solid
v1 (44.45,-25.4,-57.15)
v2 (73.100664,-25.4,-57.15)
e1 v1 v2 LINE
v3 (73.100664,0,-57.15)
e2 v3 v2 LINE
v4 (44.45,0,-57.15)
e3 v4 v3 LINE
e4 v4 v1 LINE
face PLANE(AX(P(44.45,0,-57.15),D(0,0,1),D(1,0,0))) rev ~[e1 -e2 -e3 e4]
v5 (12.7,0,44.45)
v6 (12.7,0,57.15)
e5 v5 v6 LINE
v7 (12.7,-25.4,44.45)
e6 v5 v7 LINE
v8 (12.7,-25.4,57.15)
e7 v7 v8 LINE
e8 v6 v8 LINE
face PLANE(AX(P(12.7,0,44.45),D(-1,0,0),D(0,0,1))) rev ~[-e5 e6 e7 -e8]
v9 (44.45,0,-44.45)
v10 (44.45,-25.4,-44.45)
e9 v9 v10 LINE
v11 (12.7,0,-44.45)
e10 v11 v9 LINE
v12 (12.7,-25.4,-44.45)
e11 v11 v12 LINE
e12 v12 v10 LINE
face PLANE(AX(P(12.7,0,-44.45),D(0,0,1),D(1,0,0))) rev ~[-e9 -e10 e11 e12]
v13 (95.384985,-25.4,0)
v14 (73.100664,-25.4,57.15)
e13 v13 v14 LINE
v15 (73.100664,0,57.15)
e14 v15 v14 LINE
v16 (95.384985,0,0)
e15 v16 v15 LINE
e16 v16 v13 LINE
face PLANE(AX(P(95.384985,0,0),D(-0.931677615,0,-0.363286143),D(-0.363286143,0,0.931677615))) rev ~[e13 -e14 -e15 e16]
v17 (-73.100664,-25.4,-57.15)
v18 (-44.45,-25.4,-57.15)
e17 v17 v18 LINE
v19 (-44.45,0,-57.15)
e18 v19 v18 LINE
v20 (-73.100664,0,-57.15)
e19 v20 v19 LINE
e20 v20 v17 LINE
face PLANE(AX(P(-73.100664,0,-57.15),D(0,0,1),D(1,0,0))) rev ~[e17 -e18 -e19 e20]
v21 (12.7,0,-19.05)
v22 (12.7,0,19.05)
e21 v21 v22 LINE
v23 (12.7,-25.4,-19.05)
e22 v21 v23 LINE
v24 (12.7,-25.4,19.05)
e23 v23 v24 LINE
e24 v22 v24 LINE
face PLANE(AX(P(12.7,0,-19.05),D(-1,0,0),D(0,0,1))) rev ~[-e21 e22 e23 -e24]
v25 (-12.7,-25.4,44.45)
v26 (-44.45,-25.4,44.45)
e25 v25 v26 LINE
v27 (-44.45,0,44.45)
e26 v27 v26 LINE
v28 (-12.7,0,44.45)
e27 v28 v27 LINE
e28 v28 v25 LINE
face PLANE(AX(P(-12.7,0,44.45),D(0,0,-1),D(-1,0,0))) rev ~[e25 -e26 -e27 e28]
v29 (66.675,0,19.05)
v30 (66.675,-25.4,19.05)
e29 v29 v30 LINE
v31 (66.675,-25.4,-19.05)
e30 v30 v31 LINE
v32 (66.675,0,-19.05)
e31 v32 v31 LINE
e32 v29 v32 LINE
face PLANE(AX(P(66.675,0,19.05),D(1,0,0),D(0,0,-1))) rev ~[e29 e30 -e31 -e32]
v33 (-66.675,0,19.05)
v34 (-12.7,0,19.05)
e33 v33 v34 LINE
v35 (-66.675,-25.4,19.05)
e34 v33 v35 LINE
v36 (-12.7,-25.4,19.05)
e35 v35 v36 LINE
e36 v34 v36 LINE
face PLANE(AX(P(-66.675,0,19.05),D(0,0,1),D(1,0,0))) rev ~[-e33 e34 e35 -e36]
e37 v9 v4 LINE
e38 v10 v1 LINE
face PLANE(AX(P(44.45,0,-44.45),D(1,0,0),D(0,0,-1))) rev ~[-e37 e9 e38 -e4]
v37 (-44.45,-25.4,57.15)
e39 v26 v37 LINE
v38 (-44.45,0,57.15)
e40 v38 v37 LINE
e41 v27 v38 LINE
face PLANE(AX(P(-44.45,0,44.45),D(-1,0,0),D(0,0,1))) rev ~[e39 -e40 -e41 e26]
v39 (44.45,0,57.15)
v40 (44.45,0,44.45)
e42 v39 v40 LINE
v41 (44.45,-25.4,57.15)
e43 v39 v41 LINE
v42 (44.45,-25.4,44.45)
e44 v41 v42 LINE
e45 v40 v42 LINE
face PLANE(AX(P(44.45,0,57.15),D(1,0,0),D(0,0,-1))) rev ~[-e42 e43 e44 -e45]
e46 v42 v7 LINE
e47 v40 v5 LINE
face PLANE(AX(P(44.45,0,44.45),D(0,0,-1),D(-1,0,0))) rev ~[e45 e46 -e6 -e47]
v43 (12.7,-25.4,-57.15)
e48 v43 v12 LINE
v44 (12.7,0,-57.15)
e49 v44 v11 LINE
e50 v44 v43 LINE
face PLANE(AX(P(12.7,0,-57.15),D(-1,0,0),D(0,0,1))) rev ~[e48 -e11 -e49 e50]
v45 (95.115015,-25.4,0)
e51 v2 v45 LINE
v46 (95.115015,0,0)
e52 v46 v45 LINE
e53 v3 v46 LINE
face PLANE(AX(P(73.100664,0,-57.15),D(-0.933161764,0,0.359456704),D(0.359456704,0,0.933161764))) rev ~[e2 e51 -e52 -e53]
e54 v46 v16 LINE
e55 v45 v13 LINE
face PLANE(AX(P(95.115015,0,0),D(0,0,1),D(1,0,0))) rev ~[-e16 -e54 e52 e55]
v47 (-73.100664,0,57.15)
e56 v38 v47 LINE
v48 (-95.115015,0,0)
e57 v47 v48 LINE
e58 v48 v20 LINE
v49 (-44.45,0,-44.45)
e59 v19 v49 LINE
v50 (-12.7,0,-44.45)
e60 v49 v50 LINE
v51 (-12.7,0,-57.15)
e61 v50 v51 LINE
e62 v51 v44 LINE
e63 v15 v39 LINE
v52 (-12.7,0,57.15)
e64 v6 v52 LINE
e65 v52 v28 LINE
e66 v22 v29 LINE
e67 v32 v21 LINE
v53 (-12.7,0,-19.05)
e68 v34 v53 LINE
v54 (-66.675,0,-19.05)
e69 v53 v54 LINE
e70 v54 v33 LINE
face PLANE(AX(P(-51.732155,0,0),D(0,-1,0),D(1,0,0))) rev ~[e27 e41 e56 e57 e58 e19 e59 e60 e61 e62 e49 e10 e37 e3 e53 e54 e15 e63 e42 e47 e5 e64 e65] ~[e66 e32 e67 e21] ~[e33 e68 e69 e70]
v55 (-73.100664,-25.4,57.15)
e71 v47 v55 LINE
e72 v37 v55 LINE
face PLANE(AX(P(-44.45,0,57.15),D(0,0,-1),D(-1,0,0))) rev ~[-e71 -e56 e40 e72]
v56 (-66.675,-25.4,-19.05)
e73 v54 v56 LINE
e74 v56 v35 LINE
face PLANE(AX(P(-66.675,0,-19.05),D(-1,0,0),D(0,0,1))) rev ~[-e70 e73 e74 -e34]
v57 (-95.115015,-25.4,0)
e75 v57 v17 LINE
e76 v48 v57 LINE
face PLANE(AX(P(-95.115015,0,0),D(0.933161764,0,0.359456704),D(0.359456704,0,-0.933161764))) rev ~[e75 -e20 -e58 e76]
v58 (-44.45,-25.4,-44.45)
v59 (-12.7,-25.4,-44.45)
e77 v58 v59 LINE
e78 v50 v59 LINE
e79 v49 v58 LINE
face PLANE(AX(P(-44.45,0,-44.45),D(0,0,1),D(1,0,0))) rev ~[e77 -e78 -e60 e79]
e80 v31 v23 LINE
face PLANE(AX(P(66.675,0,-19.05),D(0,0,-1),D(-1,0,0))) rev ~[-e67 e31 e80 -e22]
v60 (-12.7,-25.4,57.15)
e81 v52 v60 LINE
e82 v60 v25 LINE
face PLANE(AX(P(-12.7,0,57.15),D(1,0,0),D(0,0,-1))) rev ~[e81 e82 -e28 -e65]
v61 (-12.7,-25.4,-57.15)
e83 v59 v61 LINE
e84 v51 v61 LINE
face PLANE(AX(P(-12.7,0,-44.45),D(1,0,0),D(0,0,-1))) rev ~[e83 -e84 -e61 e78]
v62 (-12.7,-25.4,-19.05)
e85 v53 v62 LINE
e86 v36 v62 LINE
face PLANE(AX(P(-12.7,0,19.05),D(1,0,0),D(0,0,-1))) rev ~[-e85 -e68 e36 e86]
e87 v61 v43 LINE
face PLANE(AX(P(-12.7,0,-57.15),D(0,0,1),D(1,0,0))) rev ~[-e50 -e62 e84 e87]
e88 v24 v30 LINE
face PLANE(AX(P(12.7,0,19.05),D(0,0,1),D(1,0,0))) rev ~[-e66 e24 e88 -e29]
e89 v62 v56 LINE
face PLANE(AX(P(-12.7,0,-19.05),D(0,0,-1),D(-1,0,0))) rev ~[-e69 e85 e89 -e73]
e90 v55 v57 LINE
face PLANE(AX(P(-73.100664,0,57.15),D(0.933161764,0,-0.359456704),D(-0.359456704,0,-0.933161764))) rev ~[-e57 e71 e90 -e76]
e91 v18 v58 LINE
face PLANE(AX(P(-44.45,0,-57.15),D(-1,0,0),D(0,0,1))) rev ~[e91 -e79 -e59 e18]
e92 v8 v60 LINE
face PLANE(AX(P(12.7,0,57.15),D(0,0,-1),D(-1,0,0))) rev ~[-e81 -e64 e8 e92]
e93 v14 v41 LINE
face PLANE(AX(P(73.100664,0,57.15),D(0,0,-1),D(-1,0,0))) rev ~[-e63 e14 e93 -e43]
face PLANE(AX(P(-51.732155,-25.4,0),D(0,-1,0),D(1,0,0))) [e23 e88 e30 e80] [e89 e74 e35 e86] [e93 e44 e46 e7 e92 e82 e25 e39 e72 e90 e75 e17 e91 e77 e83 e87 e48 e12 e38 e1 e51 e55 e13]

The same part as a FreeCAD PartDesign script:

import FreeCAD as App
import Part
import Sketcher
Q = App.Units.Quantity


def add_polygon(sketch, points):
    """Adds a closed chain of lines whose ends are joined by coincident constraints."""
    first, n = sketch.GeometryCount, len(points)
    for a, b in zip(points, points[1:] + points[:1]):
        sketch.addGeometry(Part.LineSegment(App.Vector(*a, 0), App.Vector(*b, 0)), False)
    for i in range(n):
        sketch.addConstraint(Sketcher.Constraint("Coincident", first + i, 2, first + (i + 1) % n, 1))

doc = App.newDocument("Part")
body = doc.addObject("PartDesign::Body", "Body")

# Sketch on XZ plane
sketch1 = body.newObject("Sketcher::SketchObject", "Sketch")
sketch1.AttachmentSupport = (doc.getObject("XZ_Plane"), [""])
sketch1.MapMode = "FlatFace"
add_polygon(sketch1, [(-12.7, 44.45), (-44.45, 44.45), (-44.45, 57.15), (-73.100664, 57.15), (-95.115015, 0), (-73.100664, -57.15), (-44.45, -57.15), (-44.45, -44.45), (-12.7, -44.45), (-12.7, -57.15), (12.7, -57.15), (12.7, -44.45), (44.45, -44.45), (44.45, -57.15), (73.100664, -57.15), (95.115015, 0), (95.384985, 0), (73.100664, 57.15), (44.45, 57.15), (44.45, 44.45), (12.7, 44.45), (12.7, 57.15), (-12.7, 57.15)])  # lines 0-22
add_polygon(sketch1, [(12.7, -19.05), (12.7, 19.05), (66.675, 19.05), (66.675, -19.05)])  # lines 23-26
add_polygon(sketch1, [(-12.7, -19.05), (-66.675, -19.05), (-66.675, 19.05), (-12.7, 19.05)])  # lines 27-30
sketch1.addConstraint([
    Sketcher.Constraint("Horizontal", 0),
    Sketcher.Constraint("Vertical", 1),
    Sketcher.Constraint("Horizontal", 2),
    Sketcher.Constraint("Horizontal", 5),
    Sketcher.Constraint("Vertical", 6),
    Sketcher.Constraint("Horizontal", 7),
    Sketcher.Constraint("Vertical", 8),
    Sketcher.Constraint("Horizontal", 9),
    Sketcher.Constraint("Vertical", 10),
    Sketcher.Constraint("Horizontal", 11),
    Sketcher.Constraint("Vertical", 12),
    Sketcher.Constraint("Horizontal", 13),
    Sketcher.Constraint("Horizontal", 15),
    Sketcher.Constraint("Horizontal", 17),
    Sketcher.Constraint("Vertical", 18),
    Sketcher.Constraint("Horizontal", 19),
    Sketcher.Constraint("Vertical", 20),
    Sketcher.Constraint("Horizontal", 21),
    Sketcher.Constraint("Vertical", 22),
    Sketcher.Constraint("Vertical", 23),
    Sketcher.Constraint("Horizontal", 24),
    Sketcher.Constraint("Vertical", 25),
    Sketcher.Constraint("Horizontal", 26),
    Sketcher.Constraint("Horizontal", 27),
    Sketcher.Constraint("Vertical", 28),
    Sketcher.Constraint("Horizontal", 29),
    Sketcher.Constraint("Vertical", 30),
    Sketcher.Constraint("Symmetric", 0, 2, 11, 2, -1, 1),
    Sketcher.Constraint("Symmetric", 2, 2, 13, 2, -1, 1),
    Sketcher.Constraint("Symmetric", 3, 2, 14, 2, -1, 1),
    Sketcher.Constraint("Symmetric", 4, 2, 16, 2, -1, 1),
    Sketcher.Constraint("Symmetric", 6, 2, 18, 2, -1, 1),
    Sketcher.Constraint("Symmetric", 8, 2, 20, 2, -1, 1),
    Sketcher.Constraint("Symmetric", 24, 2, 27, 2, -1, 1),
    Sketcher.Constraint("Symmetric", 26, 2, 29, 2, -1, 1),
    Sketcher.Constraint("Symmetric", 7, 2, 10, 2, -2),
    Sketcher.Constraint("Symmetric", 5, 2, 12, 2, -2),
    Sketcher.Constraint("PointOnObject", 3, 2, -1),
    Sketcher.Constraint("Horizontal", 5, 2, 8, 2),
    Sketcher.Constraint("Horizontal", 26, 2, 27, 2),
    Sketcher.Constraint("Vertical", 2, 2, 4, 2),
    Sketcher.Constraint("Vertical", 8, 2, 21, 2),
    Sketcher.Constraint("Vertical", 20, 2, 23, 2),
    Sketcher.Constraint("DistanceX", 9, 1, 9, 2, Q("1 in")),
    Sketcher.Constraint("DistanceY", 1, 1, 1, 2, Q("0.5 in")),
    Sketcher.Constraint("DistanceY", 23, 1, 23, 2, Q("1.5 in")),
    Sketcher.Constraint("DistanceY", 4, 2, 0, 2, Q("4 in")),
    Sketcher.Constraint("DistanceX", 0, 2, 0, 1, Q("1.25 in")),
    Sketcher.Constraint("DistanceX", 24, 1, 24, 2, Q("2.125 in")),
    Sketcher.Constraint("Distance", 3, Q("61.243401 mm")),
    Sketcher.Constraint("DistanceX", 15, 1, 15, 2, Q("0.26997 mm")),
    Sketcher.Constraint("DistanceX", 2, 2, 2, 1, Q("28.650664 mm")),
])
pad1 = body.newObject("PartDesign::Pad", "Pad")
pad1.Profile = sketch1
pad1.Length = Q("1 in")

doc.recompute()
